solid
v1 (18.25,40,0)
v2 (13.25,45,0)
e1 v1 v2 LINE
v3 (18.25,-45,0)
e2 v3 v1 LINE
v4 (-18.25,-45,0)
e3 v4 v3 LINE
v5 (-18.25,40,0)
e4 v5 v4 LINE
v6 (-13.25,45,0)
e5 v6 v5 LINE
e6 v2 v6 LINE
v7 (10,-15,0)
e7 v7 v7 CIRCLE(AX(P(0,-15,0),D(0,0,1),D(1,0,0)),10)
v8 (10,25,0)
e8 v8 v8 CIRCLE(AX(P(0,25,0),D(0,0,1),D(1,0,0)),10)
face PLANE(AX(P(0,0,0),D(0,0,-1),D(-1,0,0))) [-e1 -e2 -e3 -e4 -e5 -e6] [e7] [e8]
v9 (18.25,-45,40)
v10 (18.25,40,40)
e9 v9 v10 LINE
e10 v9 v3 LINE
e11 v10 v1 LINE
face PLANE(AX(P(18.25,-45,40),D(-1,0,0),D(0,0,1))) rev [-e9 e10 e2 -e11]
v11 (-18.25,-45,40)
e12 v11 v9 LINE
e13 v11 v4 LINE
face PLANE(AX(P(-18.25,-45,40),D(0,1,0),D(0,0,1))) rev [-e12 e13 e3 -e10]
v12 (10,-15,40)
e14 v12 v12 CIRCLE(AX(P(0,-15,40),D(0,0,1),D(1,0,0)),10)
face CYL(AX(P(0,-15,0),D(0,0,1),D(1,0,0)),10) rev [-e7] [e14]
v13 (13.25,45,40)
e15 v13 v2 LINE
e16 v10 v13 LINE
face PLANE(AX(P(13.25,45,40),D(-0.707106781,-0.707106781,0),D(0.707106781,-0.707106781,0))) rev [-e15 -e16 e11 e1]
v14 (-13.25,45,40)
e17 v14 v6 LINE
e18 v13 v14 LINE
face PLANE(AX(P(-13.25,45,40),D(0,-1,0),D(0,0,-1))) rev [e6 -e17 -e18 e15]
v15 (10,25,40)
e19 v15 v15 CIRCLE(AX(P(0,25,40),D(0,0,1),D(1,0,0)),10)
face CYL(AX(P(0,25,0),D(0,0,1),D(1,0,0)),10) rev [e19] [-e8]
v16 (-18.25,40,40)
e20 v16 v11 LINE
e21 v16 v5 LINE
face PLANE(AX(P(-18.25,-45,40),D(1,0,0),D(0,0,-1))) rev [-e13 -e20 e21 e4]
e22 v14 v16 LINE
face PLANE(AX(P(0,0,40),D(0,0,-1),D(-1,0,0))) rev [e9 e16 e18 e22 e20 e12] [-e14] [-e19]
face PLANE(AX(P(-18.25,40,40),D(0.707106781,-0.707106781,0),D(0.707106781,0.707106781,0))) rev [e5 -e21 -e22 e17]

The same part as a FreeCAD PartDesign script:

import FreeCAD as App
import Part
import Sketcher

V = App.Vector
Q = App.Units.Quantity

doc = App.newDocument("Part")
body = doc.addObject("PartDesign::Body", "Body")

# Sketch on XY plane
sketch1 = doc.addObject("Sketcher::SketchObject", "Sketch")
body.addObject(sketch1)
sketch1.AttachmentSupport = (doc.XY_Plane, [""])
sketch1.MapMode = "FlatFace"
sketch1.addGeometry(Part.LineSegment(V(-13, 45, 0), V(-18, 40, 0)), False)
sketch1.addGeometry(Part.LineSegment(V(-18, 40, 0), V(-18, -45, 0)), False)
sketch1.addGeometry(Part.LineSegment(V(-18, -45, 0), V(18, -45, 0)), False)
sketch1.addGeometry(Part.LineSegment(V(18, -45, 0), V(18, 40, 0)), False)
sketch1.addGeometry(Part.LineSegment(V(18, 40, 0), V(13, 45, 0)), False)
sketch1.addGeometry(Part.LineSegment(V(13, 45, 0), V(-13, 45, 0)), False)
sketch1.addConstraint(Sketcher.Constraint("Coincident", 0, 2, 1, 1))
sketch1.addConstraint(Sketcher.Constraint("Coincident", 1, 2, 2, 1))
sketch1.addConstraint(Sketcher.Constraint("Coincident", 2, 2, 3, 1))
sketch1.addConstraint(Sketcher.Constraint("Coincident", 3, 2, 4, 1))
sketch1.addConstraint(Sketcher.Constraint("Coincident", 4, 2, 5, 1))
sketch1.addConstraint(Sketcher.Constraint("Coincident", 5, 2, 0, 1))
sketch1.addConstraint(Sketcher.Constraint("Vertical", 1))
sketch1.addConstraint(Sketcher.Constraint("Horizontal", 2))
sketch1.addConstraint(Sketcher.Constraint("Vertical", 3))
sketch1.addConstraint(Sketcher.Constraint("Horizontal", 5))
sketch1.addConstraint(Sketcher.Constraint("Symmetric", 0, 2, 3, 2, -2))
sketch1.addConstraint(Sketcher.Constraint("Perpendicular", 0, 4))
sketch1.addConstraint(Sketcher.Constraint("Equal", 0, 4))
sketch1.addConstraint(Sketcher.Constraint("DistanceY", 1, 2, 1, 1, Q("85 mm")))
sketch1.addConstraint(Sketcher.Constraint("DistanceX", 2, 1, 2, 2, Q("36.5 mm")))
sketch1.addConstraint(Sketcher.Constraint("DistanceX", 5, 2, 5, 1, Q("26.5 mm")))
sketch1.addConstraint(Sketcher.Constraint("DistanceY", -1, 1, 0, 2, Q("40 mm")))
pad1 = doc.addObject("PartDesign::Pad", "Pad")
body.addObject(pad1)
pad1.Profile = sketch1
pad1.Length = 40

# Sketch on XY plane
sketch2 = doc.addObject("Sketcher::SketchObject", "Sketch001")
body.addObject(sketch2)
sketch2.AttachmentSupport = (doc.XY_Plane, [""])
sketch2.MapMode = "FlatFace"
sketch2.AttachmentOffset = App.Placement(V(0, 0, 40), App.Rotation())
sketch2.addGeometry(Part.Circle(V(0, 25, 0), V(0, 0, 1), 10), False)
sketch2.addGeometry(Part.Circle(V(0, -15, 0), V(0, 0, 1), 10), False)
sketch2.addConstraint(Sketcher.Constraint("Equal", 0, 1))
sketch2.addConstraint(Sketcher.Constraint("PointOnObject", 0, 3, -2))
sketch2.addConstraint(Sketcher.Constraint("PointOnObject", 1, 3, -2))
sketch2.addConstraint(Sketcher.Constraint("Diameter", 0, Q("20 mm")))
sketch2.addConstraint(Sketcher.Constraint("DistanceY", -1, 1, 0, 3, Q("25 mm")))
sketch2.addConstraint(Sketcher.Constraint("DistanceY", 1, 3, -1, 1, Q("15 mm")))
pocket1 = doc.addObject("PartDesign::Pocket", "Pocket")
body.addObject(pocket1)
pocket1.Profile = sketch2
pocket1.Length = 40

doc.recompute()
